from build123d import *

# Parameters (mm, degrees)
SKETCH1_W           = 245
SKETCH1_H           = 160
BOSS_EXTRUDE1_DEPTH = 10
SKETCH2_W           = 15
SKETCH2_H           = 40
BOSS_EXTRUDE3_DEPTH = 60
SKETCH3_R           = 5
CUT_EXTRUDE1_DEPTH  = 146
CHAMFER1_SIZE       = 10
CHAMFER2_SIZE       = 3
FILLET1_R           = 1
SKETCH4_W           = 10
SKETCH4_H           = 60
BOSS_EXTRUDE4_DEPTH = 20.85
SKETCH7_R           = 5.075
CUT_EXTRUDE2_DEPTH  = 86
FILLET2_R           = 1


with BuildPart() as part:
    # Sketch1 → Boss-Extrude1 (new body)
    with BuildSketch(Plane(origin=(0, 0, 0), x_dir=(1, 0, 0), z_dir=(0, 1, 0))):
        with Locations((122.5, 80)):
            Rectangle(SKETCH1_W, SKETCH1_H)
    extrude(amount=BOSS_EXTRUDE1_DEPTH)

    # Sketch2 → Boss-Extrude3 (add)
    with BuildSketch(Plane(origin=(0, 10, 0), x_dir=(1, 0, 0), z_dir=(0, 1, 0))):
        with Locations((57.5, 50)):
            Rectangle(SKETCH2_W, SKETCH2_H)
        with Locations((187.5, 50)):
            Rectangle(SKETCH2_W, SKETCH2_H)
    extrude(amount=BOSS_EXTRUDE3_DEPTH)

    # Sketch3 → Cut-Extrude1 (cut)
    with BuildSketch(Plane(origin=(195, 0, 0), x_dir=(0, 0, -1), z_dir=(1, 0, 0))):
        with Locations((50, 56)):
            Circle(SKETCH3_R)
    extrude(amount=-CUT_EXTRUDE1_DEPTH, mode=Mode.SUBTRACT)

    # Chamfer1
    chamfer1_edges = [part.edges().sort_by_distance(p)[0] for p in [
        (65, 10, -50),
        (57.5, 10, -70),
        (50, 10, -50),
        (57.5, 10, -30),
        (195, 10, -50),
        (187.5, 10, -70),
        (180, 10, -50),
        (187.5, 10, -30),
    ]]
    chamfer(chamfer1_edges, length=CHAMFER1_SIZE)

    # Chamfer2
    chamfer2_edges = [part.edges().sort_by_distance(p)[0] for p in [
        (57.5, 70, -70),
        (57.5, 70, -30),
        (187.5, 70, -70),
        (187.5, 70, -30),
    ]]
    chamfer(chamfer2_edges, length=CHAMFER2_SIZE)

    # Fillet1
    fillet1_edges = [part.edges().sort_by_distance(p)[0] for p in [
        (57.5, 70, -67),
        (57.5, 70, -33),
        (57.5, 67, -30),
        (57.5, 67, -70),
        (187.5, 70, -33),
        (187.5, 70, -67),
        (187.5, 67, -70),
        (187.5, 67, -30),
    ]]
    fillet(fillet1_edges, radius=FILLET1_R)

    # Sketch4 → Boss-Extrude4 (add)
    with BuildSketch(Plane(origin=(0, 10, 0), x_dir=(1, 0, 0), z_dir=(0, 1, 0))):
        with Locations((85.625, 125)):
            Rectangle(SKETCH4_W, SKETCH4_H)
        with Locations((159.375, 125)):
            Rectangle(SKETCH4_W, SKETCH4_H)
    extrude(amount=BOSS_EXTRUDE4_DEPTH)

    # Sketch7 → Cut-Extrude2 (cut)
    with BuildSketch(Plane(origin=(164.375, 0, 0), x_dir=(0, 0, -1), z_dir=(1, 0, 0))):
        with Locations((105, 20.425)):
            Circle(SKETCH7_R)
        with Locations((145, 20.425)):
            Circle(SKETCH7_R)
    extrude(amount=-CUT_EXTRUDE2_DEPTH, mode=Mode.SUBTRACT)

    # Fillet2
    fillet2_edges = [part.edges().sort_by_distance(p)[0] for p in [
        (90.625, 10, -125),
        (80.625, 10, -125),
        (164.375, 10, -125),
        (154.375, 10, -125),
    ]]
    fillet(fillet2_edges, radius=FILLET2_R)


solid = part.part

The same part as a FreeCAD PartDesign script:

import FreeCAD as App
import Part
import Sketcher

V = App.Vector


def edges_at(feature, points):
    """Names of the edges that pass closest to the given points."""
    edges = feature.Shape.Edges
    near = lambda p: min(range(len(edges)), key=lambda i: edges[i].distToShape(Part.Vertex(*p))[0])
    return sorted({f"Edge{near(p) + 1}" for p in points})


def add_polygon(sketch, points):
    """Adds a closed chain of lines whose ends are joined by coincident constraints."""
    first, n = sketch.GeometryCount, len(points)
    for a, b in zip(points, points[1:] + points[:1]):
        sketch.addGeometry(Part.LineSegment(App.Vector(*a, 0), App.Vector(*b, 0)), False)
    for i in range(n):
        sketch.addConstraint(Sketcher.Constraint("Coincident", first + i, 2, first + (i + 1) % n, 1))

doc = App.newDocument("Part")
params = doc.addObject("Spreadsheet::Sheet", "Params")
for row, (alias, value) in enumerate([
    ("sketch1_width", "245 mm"),
    ("sketch1_height", "160 mm"),
    ("pad1_length", "10 mm"),
    ("sketch2_width", "15 mm"),
    ("sketch2_height", "40 mm"),
    ("pad2_length", "60 mm"),
    ("sketch3_diameter", "10 mm"),
    ("pocket1_length", "146 mm"),
    ("chamfer_size", "10 mm"),
    ("chamfer2_size", "3 mm"),
    ("fillet_radius", "1 mm"),
    ("sketch4_width", "10 mm"),
    ("sketch4_height", "60 mm"),
    ("pad3_length", "20.85 mm"),
    ("sketch5_diameter", "10.15 mm"),
    ("pocket2_length", "86 mm"),
    ("fillet2_radius", "1 mm"),
], start=1):
    params.set(f"A{row}", alias)
    params.set(f"B{row}", "=" + value)
    params.setAlias(f"B{row}", alias)

body = doc.addObject("PartDesign::Body", "Body")

sketch1 = body.newObject("Sketcher::SketchObject", "Sketch")
sketch1.AttachmentSupport = (doc.getObject("XZ_Plane"), [""])
sketch1.MapMode = "FlatFace"
add_polygon(sketch1, [(0, -160), (0, 0), (245, 0), (245, -160)])
sketch1.addConstraint(Sketcher.Constraint("Vertical", 0))
sketch1.addConstraint(Sketcher.Constraint("Horizontal", 1))
sketch1.addConstraint(Sketcher.Constraint("Vertical", 2))
sketch1.addConstraint(Sketcher.Constraint("Horizontal", 3))
sketch1.addConstraint(Sketcher.Constraint("Coincident", 0, 2, -1, 1))
sketch1.addConstraint(Sketcher.Constraint("DistanceX", 1, 1, 1, 2, 245.0))
sketch1.addConstraint(Sketcher.Constraint("DistanceY", 0, 1, 0, 2, 160.0))
sketch1.setExpression("Constraints[9]", "Params.sketch1_width")
sketch1.setExpression("Constraints[10]", "Params.sketch1_height")
pad1 = body.newObject("PartDesign::Pad", "Pad")
pad1.Profile = sketch1
pad1.setExpression("Length", "Params.pad1_length")
pad1.Reversed = True

sketch2 = body.newObject("Sketcher::SketchObject", "Sketch001")
sketch2.AttachmentSupport = (doc.getObject("XZ_Plane"), [""])
sketch2.MapMode = "FlatFace"
sketch2.AttachmentOffset = App.Placement(V(0, 0, -10), App.Rotation())
add_polygon(sketch2, [(50, -70), (50, -30), (65, -30), (65, -70)])
add_polygon(sketch2, [(180, -70), (180, -30), (195, -30), (195, -70)])
sketch2.addConstraint(Sketcher.Constraint("Vertical", 0))
sketch2.addConstraint(Sketcher.Constraint("Horizontal", 1))
sketch2.addConstraint(Sketcher.Constraint("Vertical", 2))
sketch2.addConstraint(Sketcher.Constraint("Horizontal", 3))
sketch2.addConstraint(Sketcher.Constraint("Vertical", 4))
sketch2.addConstraint(Sketcher.Constraint("Horizontal", 5))
sketch2.addConstraint(Sketcher.Constraint("Vertical", 6))
sketch2.addConstraint(Sketcher.Constraint("Horizontal", 7))
sketch2.addConstraint(Sketcher.Constraint("Horizontal", 1, 2, 4, 2))
sketch2.addConstraint(Sketcher.Constraint("Horizontal", 3, 2, 6, 2))
sketch2.addConstraint(Sketcher.Constraint("Equal", 3, 5))
sketch2.addConstraint(Sketcher.Constraint("DistanceX", 1, 1, 1, 2, 15.0))
sketch2.addConstraint(Sketcher.Constraint("DistanceY", 0, 1, 0, 2, 40.0))
sketch2.addConstraint(Sketcher.Constraint("DistanceX", -1, 1, 0, 2, 50.0))
sketch2.addConstraint(Sketcher.Constraint("DistanceY", 0, 2, -1, 1, 30.0))
sketch2.addConstraint(Sketcher.Constraint("DistanceX", -1, 1, 4, 2, 180.0))
sketch2.setExpression("Constraints[19]", "Params.sketch2_width")
sketch2.setExpression("Constraints[20]", "Params.sketch2_height")
pad2 = body.newObject("PartDesign::Pad", "Pad001")
pad2.Profile = sketch2
pad2.setExpression("Length", "Params.pad2_length")
pad2.Reversed = True

sketch3 = body.newObject("Sketcher::SketchObject", "Sketch002")
sketch3.AttachmentSupport = (doc.getObject("YZ_Plane"), [""])
sketch3.MapMode = "FlatFace"
sketch3.AttachmentOffset = App.Placement(V(0, 0, 195), App.Rotation())
sketch3.addGeometry(Part.Circle(V(56, -50, 0), V(0, 0, 1), 5), False)
sketch3.addConstraint(Sketcher.Constraint("Diameter", 0, 10.0))
sketch3.addConstraint(Sketcher.Constraint("DistanceX", -1, 1, 0, 3, 56.0))
sketch3.addConstraint(Sketcher.Constraint("DistanceY", 0, 3, -1, 1, 50.0))
sketch3.setExpression("Constraints[0]", "Params.sketch3_diameter")
pocket1 = body.newObject("PartDesign::Pocket", "Pocket")
pocket1.Profile = sketch3
pocket1.setExpression("Length", "Params.pocket1_length")
doc.recompute()

chamfer = body.newObject("PartDesign::Chamfer", "Chamfer")
chamfer.Base = (pocket1, edges_at(pocket1, [
    (65, 10, -50),
    (57.5, 10, -70),
    (50, 10, -50),
    (57.5, 10, -30),
    (195, 10, -50),
    (187.5, 10, -70),
    (180, 10, -50),
    (187.5, 10, -30),
]))
chamfer.setExpression("Size", "Params.chamfer_size")
doc.recompute()

chamfer2 = body.newObject("PartDesign::Chamfer", "Chamfer001")
chamfer2.Base = (chamfer, edges_at(chamfer, [
    (57.5, 70, -70),
    (57.5, 70, -30),
    (187.5, 70, -70),
    (187.5, 70, -30),
]))
chamfer2.setExpression("Size", "Params.chamfer2_size")
doc.recompute()

fillet = body.newObject("PartDesign::Fillet", "Fillet")
fillet.Base = (chamfer2, edges_at(chamfer2, [
    (57.5, 70, -67),
    (57.5, 70, -33),
    (57.5, 67, -30),
    (57.5, 67, -70),
    (187.5, 70, -33),
    (187.5, 70, -67),
    (187.5, 67, -70),
    (187.5, 67, -30),
]))
fillet.setExpression("Radius", "Params.fillet_radius")

sketch4 = body.newObject("Sketcher::SketchObject", "Sketch003")
sketch4.AttachmentSupport = (doc.getObject("XZ_Plane"), [""])
sketch4.MapMode = "FlatFace"
sketch4.AttachmentOffset = App.Placement(V(0, 0, -10), App.Rotation())
add_polygon(sketch4, [(81, -155), (81, -95), (91, -95), (91, -155)])
add_polygon(sketch4, [(154, -155), (154, -95), (164, -95), (164, -155)])
sketch4.addConstraint(Sketcher.Constraint("Vertical", 0))
sketch4.addConstraint(Sketcher.Constraint("Horizontal", 1))
sketch4.addConstraint(Sketcher.Constraint("Vertical", 2))
sketch4.addConstraint(Sketcher.Constraint("Horizontal", 3))
sketch4.addConstraint(Sketcher.Constraint("Vertical", 4))
sketch4.addConstraint(Sketcher.Constraint("Horizontal", 5))
sketch4.addConstraint(Sketcher.Constraint("Vertical", 6))
sketch4.addConstraint(Sketcher.Constraint("Horizontal", 7))
sketch4.addConstraint(Sketcher.Constraint("Horizontal", 1, 2, 4, 2))
sketch4.addConstraint(Sketcher.Constraint("Horizontal", 3, 2, 6, 2))
sketch4.addConstraint(Sketcher.Constraint("Equal", 3, 5))
sketch4.addConstraint(Sketcher.Constraint("DistanceX", 1, 1, 1, 2, 10.0))
sketch4.addConstraint(Sketcher.Constraint("DistanceY", 0, 1, 0, 2, 60.0))
sketch4.addConstraint(Sketcher.Constraint("DistanceY", 0, 2, -1, 1, 95.0))
sketch4.addConstraint(Sketcher.Constraint("DistanceX", 1, 2, 4, 2, 63.75))
sketch4.addConstraint(Sketcher.Constraint("DistanceX", -1, 1, 0, 2, 80.625))
sketch4.setExpression("Constraints[19]", "Params.sketch4_width")
sketch4.setExpression("Constraints[20]", "Params.sketch4_height")
pad3 = body.newObject("PartDesign::Pad", "Pad002")
pad3.Profile = sketch4
pad3.setExpression("Length", "Params.pad3_length")
pad3.Reversed = True

sketch5 = body.newObject("Sketcher::SketchObject", "Sketch004")
sketch5.AttachmentSupport = (doc.getObject("YZ_Plane"), [""])
sketch5.MapMode = "FlatFace"
sketch5.AttachmentOffset = App.Placement(V(0, 0, 164.375), App.Rotation())
sketch5.addGeometry(Part.Circle(V(20, -105, 0), V(0, 0, 1), 5), False)
sketch5.addGeometry(Part.Circle(V(20, -145, 0), V(0, 0, 1), 5), False)
sketch5.addConstraint(Sketcher.Constraint("Equal", 0, 1))
sketch5.addConstraint(Sketcher.Constraint("Vertical", 0, 3, 1, 3))
sketch5.addConstraint(Sketcher.Constraint("Diameter", 0, 10.15))
sketch5.addConstraint(Sketcher.Constraint("DistanceY", 0, 3, -1, 1, 105.0))
sketch5.addConstraint(Sketcher.Constraint("DistanceY", 1, 3, -1, 1, 145.0))
sketch5.addConstraint(Sketcher.Constraint("DistanceX", -1, 1, 0, 3, 20.425))
sketch5.setExpression("Constraints[2]", "Params.sketch5_diameter")
pocket2 = body.newObject("PartDesign::Pocket", "Pocket001")
pocket2.Profile = sketch5
pocket2.setExpression("Length", "Params.pocket2_length")
doc.recompute()

fillet2 = body.newObject("PartDesign::Fillet", "Fillet001")
fillet2.Base = (pocket2, edges_at(pocket2, [
    (90.625, 10, -125),
    (80.625, 10, -125),
    (164.375, 10, -125),
    (154.375, 10, -125),
]))
fillet2.setExpression("Radius", "Params.fillet2_radius")

doc.recompute()
